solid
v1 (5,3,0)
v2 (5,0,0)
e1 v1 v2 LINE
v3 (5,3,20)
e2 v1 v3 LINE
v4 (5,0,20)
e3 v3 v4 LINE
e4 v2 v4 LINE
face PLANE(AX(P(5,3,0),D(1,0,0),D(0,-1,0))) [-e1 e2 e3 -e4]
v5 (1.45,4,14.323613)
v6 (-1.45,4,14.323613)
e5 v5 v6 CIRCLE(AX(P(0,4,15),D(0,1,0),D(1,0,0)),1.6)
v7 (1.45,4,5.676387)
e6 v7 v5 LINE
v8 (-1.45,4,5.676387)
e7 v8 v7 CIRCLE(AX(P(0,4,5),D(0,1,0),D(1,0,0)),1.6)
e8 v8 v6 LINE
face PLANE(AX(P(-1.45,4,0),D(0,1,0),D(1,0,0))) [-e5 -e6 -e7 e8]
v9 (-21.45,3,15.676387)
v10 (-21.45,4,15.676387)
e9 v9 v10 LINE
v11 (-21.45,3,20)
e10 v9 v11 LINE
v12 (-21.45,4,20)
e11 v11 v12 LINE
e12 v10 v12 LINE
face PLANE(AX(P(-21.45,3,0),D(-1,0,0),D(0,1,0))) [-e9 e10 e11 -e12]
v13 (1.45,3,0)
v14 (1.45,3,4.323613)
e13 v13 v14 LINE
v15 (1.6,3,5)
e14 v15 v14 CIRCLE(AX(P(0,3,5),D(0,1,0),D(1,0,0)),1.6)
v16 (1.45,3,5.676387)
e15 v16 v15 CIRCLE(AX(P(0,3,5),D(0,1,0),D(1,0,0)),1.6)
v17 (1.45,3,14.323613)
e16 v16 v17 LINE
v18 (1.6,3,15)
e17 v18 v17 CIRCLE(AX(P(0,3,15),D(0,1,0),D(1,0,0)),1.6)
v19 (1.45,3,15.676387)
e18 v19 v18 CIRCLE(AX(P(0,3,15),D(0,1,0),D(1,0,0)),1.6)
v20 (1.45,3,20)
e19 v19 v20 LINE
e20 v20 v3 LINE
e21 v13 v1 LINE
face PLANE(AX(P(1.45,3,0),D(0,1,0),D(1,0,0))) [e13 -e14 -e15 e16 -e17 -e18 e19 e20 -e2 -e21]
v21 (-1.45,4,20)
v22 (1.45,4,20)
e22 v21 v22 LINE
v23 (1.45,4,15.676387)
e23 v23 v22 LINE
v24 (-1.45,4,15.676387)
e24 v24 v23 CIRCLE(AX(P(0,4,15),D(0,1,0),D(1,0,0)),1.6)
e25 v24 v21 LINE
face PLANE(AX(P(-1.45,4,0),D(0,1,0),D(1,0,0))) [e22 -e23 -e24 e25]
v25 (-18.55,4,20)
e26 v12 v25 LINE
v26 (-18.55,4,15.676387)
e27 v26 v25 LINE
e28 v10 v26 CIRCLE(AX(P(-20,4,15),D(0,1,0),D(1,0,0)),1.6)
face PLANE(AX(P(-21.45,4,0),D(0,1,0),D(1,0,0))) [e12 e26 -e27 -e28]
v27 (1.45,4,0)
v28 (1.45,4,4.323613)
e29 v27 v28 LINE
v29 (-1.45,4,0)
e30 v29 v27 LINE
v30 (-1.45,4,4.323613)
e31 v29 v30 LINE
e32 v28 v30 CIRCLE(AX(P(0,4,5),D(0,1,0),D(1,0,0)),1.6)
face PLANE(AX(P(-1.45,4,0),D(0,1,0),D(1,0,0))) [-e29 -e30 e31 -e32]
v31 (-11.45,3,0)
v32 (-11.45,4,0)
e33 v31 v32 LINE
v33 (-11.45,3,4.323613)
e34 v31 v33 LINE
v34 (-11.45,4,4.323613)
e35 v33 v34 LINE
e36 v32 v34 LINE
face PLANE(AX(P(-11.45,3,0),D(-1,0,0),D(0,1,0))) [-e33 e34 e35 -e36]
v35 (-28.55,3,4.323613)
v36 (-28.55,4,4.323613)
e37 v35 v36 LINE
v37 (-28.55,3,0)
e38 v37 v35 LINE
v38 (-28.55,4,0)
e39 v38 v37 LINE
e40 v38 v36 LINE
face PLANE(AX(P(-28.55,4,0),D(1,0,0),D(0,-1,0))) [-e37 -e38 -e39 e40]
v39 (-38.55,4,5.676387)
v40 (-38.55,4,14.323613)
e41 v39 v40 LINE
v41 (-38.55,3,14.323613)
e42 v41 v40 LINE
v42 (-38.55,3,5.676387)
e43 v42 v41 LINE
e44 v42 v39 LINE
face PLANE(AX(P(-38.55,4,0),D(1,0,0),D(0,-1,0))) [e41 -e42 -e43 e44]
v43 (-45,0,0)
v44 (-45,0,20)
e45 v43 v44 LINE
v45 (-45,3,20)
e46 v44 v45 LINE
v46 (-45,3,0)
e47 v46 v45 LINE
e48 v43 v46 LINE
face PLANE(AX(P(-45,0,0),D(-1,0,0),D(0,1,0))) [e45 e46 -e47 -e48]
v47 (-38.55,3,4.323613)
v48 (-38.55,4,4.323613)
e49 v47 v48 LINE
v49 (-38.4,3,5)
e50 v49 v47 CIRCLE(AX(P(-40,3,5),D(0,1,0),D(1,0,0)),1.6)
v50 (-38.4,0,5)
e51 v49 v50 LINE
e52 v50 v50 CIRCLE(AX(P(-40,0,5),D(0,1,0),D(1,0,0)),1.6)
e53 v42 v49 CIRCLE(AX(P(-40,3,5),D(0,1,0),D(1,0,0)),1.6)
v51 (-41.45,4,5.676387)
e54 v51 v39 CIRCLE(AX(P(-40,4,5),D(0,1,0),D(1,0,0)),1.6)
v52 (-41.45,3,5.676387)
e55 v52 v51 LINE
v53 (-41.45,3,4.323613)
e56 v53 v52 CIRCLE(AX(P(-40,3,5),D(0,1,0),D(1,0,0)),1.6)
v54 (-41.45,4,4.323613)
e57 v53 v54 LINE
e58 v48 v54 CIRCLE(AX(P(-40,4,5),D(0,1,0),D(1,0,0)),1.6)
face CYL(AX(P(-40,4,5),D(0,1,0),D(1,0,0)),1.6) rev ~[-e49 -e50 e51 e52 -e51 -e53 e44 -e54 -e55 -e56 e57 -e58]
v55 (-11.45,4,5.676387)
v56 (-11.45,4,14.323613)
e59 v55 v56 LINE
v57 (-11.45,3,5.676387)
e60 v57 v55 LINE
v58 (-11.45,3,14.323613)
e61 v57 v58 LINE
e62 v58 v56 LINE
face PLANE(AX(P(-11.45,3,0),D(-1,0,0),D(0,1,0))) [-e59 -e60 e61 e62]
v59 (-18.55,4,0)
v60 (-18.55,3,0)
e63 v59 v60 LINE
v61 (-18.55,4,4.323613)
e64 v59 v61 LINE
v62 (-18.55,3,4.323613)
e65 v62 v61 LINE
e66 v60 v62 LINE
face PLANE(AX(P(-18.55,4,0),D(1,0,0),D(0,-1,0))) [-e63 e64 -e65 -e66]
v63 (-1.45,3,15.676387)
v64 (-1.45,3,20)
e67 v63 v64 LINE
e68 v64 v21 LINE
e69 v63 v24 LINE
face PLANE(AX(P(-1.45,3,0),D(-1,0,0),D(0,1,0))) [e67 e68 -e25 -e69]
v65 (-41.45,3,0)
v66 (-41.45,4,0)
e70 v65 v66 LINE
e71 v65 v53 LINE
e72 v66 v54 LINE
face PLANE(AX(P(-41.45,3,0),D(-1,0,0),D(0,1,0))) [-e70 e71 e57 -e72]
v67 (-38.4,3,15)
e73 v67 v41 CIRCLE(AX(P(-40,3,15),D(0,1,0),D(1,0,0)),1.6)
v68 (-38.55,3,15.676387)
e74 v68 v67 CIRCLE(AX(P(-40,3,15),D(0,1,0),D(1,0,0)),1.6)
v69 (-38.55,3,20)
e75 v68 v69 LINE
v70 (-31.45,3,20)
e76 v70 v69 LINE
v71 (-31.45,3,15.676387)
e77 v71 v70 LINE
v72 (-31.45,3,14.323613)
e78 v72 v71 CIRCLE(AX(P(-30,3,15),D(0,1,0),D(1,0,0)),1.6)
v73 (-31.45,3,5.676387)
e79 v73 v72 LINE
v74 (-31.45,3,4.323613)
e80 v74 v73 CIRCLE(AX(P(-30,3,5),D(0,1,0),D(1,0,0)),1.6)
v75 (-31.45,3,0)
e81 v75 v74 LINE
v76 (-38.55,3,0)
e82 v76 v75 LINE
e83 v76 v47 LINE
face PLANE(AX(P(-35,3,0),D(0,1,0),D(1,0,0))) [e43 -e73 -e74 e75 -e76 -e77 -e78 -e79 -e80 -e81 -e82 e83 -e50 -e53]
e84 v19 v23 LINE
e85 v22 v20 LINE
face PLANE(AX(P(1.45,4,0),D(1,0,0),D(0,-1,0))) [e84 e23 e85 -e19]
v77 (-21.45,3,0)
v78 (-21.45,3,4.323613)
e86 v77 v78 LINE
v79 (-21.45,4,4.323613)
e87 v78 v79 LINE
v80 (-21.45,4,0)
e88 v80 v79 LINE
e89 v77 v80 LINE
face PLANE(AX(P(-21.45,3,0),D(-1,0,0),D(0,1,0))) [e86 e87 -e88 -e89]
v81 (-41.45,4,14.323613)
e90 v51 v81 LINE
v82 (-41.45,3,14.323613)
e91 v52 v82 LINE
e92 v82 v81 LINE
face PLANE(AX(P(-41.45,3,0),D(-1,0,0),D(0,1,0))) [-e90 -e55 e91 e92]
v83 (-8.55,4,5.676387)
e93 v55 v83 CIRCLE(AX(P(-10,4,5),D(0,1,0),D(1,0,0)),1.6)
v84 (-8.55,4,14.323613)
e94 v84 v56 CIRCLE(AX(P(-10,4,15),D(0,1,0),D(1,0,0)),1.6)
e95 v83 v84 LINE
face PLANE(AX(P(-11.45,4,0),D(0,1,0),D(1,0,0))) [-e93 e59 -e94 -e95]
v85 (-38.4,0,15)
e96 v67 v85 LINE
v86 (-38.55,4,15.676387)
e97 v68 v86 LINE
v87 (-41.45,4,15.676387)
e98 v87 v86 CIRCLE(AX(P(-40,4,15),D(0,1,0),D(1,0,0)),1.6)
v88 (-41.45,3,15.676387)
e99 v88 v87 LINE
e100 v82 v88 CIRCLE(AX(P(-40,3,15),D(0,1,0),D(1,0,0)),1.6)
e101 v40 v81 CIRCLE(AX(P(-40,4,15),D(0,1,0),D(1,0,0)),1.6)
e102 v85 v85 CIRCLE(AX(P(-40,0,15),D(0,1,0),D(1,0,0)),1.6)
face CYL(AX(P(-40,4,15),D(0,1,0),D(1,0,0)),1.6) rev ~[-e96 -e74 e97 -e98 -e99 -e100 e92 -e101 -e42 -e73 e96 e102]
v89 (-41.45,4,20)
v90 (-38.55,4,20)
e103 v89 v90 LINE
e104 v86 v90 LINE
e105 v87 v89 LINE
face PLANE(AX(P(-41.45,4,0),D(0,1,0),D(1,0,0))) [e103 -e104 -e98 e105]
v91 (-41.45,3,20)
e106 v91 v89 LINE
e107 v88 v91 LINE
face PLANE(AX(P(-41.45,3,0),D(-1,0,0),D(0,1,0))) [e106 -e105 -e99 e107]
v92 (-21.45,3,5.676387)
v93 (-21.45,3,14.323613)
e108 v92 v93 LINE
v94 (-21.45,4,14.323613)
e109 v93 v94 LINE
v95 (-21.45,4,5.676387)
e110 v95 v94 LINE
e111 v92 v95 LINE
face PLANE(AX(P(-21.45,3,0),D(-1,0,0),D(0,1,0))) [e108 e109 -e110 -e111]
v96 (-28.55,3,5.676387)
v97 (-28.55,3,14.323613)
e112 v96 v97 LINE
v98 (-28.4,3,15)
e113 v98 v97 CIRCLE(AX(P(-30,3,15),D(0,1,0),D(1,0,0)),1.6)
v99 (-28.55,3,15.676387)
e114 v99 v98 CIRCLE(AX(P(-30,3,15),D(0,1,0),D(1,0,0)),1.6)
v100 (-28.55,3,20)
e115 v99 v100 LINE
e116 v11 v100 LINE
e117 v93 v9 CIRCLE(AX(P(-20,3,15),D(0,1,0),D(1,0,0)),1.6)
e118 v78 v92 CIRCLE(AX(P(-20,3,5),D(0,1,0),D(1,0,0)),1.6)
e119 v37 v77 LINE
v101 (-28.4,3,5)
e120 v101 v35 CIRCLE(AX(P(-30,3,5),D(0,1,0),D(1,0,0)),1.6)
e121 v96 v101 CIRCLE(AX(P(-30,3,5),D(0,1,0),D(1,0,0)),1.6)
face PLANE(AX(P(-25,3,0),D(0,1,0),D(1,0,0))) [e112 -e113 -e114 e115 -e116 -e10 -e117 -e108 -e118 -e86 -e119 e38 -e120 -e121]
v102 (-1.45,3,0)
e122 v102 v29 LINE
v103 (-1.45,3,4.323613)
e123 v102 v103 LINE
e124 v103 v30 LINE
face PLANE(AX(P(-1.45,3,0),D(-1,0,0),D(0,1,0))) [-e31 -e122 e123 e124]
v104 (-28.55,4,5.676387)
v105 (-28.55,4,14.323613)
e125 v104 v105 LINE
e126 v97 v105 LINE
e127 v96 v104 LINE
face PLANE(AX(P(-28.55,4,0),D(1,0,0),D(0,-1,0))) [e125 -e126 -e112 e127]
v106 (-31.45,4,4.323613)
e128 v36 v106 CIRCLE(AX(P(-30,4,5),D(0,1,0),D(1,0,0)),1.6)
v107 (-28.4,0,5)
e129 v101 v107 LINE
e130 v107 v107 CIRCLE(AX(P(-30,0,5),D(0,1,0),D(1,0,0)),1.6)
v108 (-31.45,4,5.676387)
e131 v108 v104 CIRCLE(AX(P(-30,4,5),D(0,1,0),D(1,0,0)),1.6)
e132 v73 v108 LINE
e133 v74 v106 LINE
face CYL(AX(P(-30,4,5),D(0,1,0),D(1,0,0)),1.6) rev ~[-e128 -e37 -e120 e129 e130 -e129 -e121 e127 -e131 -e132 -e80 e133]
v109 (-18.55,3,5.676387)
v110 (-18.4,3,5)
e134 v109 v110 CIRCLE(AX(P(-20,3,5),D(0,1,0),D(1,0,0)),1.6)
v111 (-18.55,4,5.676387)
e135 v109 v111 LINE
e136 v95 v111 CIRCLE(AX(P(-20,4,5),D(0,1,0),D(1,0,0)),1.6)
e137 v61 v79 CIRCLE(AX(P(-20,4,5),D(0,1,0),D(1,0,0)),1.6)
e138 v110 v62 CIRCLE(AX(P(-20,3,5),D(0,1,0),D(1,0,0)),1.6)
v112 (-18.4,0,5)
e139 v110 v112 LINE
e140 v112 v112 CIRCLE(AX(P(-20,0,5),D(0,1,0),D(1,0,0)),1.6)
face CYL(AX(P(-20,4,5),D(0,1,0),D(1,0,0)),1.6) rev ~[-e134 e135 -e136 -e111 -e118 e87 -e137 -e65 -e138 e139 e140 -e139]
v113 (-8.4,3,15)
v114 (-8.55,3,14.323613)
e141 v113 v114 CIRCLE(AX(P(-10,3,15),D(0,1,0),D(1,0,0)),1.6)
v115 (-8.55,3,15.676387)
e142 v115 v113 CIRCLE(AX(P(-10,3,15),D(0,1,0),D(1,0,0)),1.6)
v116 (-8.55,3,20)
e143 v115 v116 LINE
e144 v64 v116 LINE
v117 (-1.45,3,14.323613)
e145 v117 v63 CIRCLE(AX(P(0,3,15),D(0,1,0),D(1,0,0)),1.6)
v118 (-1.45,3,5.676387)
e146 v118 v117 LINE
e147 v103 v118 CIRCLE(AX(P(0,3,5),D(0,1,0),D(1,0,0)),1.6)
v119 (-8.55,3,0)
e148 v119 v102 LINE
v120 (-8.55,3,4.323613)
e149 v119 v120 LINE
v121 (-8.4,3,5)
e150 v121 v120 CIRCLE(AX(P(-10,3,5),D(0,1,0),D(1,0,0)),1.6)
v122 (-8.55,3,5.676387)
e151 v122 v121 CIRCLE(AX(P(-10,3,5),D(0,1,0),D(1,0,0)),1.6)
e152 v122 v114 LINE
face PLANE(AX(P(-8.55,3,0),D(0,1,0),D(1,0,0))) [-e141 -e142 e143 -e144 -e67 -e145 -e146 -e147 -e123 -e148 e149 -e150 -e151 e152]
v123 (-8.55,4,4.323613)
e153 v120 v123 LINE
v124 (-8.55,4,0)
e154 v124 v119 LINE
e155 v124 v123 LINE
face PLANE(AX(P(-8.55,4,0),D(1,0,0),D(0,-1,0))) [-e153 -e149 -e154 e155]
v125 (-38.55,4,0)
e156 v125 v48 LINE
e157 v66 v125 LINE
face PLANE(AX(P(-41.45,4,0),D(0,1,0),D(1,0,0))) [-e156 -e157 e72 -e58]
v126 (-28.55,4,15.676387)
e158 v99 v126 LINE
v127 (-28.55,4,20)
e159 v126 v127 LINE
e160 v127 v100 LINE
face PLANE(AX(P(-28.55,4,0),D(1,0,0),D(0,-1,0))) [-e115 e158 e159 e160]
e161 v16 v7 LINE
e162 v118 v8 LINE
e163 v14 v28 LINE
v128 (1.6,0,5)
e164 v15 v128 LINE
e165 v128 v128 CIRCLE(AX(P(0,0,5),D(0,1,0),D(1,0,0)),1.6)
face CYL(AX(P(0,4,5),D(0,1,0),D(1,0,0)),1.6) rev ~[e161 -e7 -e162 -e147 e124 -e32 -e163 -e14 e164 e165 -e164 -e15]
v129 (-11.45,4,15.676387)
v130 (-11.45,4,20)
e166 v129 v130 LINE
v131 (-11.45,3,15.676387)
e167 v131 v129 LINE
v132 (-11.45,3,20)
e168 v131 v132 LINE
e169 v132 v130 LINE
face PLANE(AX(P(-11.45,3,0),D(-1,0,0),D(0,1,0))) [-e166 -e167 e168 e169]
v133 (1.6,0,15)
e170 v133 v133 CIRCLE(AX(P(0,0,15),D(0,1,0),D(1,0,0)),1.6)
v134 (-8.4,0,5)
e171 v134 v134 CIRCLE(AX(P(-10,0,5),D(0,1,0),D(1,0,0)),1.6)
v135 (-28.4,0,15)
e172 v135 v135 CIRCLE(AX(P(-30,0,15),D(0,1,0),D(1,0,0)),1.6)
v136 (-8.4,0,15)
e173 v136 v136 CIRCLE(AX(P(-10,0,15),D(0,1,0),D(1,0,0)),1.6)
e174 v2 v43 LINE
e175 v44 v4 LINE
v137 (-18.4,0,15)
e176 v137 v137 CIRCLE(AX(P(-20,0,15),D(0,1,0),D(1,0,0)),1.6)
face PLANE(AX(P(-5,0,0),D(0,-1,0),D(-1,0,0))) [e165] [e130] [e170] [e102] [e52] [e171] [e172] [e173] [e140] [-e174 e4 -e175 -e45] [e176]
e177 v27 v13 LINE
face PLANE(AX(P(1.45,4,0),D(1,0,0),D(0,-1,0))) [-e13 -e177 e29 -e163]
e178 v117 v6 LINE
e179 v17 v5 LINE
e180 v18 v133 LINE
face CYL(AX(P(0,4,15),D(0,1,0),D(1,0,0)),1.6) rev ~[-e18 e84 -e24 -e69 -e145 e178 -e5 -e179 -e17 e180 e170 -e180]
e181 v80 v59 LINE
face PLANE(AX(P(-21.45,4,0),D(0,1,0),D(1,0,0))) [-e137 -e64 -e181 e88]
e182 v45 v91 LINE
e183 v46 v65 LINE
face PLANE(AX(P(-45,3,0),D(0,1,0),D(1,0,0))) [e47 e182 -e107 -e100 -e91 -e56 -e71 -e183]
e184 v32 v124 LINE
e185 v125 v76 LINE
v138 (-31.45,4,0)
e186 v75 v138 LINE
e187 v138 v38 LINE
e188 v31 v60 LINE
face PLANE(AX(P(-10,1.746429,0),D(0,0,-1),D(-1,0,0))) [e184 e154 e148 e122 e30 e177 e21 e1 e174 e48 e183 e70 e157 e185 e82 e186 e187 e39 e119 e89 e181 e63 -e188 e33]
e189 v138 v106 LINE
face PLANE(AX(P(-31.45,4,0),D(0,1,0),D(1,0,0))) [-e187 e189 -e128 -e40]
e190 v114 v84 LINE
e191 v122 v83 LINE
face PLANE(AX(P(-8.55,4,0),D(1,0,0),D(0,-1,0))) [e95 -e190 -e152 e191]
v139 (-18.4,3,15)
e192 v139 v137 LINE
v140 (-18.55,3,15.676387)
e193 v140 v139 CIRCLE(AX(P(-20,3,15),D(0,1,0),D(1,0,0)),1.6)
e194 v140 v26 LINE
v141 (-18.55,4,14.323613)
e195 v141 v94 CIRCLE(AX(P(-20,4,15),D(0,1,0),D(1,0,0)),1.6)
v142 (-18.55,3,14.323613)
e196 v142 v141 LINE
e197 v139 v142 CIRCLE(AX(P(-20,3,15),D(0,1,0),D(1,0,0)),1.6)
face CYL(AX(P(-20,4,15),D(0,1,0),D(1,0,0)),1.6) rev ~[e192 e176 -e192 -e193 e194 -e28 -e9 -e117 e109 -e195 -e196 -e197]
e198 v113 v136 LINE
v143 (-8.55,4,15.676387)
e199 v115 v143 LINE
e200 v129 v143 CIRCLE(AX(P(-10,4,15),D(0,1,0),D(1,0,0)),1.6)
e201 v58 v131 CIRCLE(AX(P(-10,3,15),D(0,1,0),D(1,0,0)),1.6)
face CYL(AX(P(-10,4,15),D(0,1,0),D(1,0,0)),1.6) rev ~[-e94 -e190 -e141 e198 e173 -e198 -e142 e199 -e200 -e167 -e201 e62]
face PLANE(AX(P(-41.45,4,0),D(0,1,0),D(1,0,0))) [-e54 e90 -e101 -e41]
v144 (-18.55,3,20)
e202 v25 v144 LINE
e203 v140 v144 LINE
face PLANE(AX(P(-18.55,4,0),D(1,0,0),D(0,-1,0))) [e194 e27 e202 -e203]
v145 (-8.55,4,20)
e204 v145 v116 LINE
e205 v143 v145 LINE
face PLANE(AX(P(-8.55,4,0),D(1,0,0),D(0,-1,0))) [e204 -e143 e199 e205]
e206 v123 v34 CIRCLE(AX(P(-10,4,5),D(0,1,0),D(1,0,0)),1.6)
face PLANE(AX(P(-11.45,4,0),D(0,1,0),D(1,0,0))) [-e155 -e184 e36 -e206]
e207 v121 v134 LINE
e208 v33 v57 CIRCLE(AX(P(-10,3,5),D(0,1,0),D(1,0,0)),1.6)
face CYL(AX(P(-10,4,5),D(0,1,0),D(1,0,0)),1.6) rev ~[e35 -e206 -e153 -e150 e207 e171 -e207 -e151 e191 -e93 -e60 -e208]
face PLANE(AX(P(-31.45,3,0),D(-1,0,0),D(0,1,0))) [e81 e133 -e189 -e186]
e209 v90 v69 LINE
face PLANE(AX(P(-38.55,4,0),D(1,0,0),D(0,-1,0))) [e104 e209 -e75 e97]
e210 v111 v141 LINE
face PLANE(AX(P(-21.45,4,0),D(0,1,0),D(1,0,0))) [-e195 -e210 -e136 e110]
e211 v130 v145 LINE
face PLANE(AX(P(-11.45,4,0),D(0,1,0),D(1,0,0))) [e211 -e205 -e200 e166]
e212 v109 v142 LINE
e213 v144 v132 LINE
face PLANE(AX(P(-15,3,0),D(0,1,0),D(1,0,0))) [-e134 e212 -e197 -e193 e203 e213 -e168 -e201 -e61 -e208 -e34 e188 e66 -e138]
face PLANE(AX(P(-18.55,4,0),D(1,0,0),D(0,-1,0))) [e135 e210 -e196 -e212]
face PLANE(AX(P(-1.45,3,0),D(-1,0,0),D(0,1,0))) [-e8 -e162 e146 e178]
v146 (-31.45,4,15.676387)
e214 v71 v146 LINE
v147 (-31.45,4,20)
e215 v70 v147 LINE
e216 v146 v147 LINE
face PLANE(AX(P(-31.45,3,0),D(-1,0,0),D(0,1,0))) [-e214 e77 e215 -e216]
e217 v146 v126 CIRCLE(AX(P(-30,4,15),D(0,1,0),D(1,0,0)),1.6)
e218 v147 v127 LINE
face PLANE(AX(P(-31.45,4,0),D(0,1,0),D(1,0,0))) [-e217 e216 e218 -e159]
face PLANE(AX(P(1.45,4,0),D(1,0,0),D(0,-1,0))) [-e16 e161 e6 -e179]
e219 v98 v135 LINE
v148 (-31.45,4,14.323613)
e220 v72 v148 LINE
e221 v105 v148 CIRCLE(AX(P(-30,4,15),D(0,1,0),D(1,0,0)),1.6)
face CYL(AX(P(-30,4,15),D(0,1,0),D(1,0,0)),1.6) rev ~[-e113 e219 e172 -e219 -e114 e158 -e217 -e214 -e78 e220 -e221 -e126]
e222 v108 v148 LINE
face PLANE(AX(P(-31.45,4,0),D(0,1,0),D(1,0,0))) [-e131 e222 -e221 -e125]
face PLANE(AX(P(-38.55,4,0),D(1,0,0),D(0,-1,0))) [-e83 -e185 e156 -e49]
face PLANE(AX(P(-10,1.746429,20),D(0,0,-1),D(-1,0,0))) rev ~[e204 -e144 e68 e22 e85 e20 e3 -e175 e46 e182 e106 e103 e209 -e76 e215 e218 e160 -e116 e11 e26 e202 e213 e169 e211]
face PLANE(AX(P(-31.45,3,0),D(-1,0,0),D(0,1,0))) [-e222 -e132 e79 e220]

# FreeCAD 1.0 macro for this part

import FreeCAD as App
import Part
import Sketcher

V = App.Vector

doc = App.newDocument("Part")
body = doc.addObject("PartDesign::Body", "Body")

sketch1 = body.newObject("Sketcher::SketchObject", "Sketch")
sketch1.AttachmentSupport = (doc.getObject("XY_Plane"), [""])
sketch1.MapMode = "FlatFace"
sketch1.addGeometry(Part.LineSegment(V(-5, 3, 0), V(-5, 0, 0)), False)
sketch1.addGeometry(Part.LineSegment(V(-5, 0, 0), V(5, 0, 0)), False)
sketch1.addGeometry(Part.LineSegment(V(5, 0, 0), V(5, 3, 0)), False)
sketch1.addGeometry(Part.LineSegment(V(5, 3, 0), V(1.4, 3, 0)), False)
sketch1.addGeometry(Part.LineSegment(V(1.4, 3, 0), V(1.4, 4, 0)), False)
sketch1.addGeometry(Part.LineSegment(V(1.4, 4, 0), V(-1.4, 4, 0)), False)
sketch1.addGeometry(Part.LineSegment(V(-1.4, 4, 0), V(-1.4, 3, 0)), False)
sketch1.addGeometry(Part.LineSegment(V(-1.4, 3, 0), V(-5, 3, 0)), False)
sketch1.addConstraint(Sketcher.Constraint("Coincident", 0, 2, 1, 1))
sketch1.addConstraint(Sketcher.Constraint("Coincident", 1, 2, 2, 1))
sketch1.addConstraint(Sketcher.Constraint("Coincident", 2, 2, 3, 1))
sketch1.addConstraint(Sketcher.Constraint("Coincident", 3, 2, 4, 1))
sketch1.addConstraint(Sketcher.Constraint("Coincident", 4, 2, 5, 1))
sketch1.addConstraint(Sketcher.Constraint("Coincident", 5, 2, 6, 1))
sketch1.addConstraint(Sketcher.Constraint("Coincident", 6, 2, 7, 1))
sketch1.addConstraint(Sketcher.Constraint("Coincident", 7, 2, 0, 1))
sketch1.addConstraint(Sketcher.Constraint("Vertical", 0))
sketch1.addConstraint(Sketcher.Constraint("Horizontal", 1))
sketch1.addConstraint(Sketcher.Constraint("Vertical", 2))
sketch1.addConstraint(Sketcher.Constraint("Horizontal", 3))
sketch1.addConstraint(Sketcher.Constraint("Vertical", 4))
sketch1.addConstraint(Sketcher.Constraint("Horizontal", 5))
sketch1.addConstraint(Sketcher.Constraint("Vertical", 6))
sketch1.addConstraint(Sketcher.Constraint("Horizontal", 7))
sketch1.addConstraint(Sketcher.Constraint("Symmetric", 0, 2, 1, 2, -1, 1))
sketch1.addConstraint(Sketcher.Constraint("Symmetric", 3, 2, 6, 2, -2))
sketch1.addConstraint(Sketcher.Constraint("DistanceX", 1, 1, 1, 2, 10.0))
sketch1.addConstraint(Sketcher.Constraint("DistanceY", 0, 2, 0, 1, 3.0))
sketch1.addConstraint(Sketcher.Constraint("DistanceY", 4, 1, 4, 2, 1.0))
sketch1.addConstraint(Sketcher.Constraint("DistanceX", 5, 2, 5, 1, 2.9))
pad1 = body.newObject("PartDesign::Pad", "Pad")
pad1.Profile = sketch1
pad1.Length = 20

sketch2 = body.newObject("Sketcher::SketchObject", "Sketch001")
sketch2.AttachmentSupport = (doc.getObject("XZ_Plane"), [""])
sketch2.MapMode = "FlatFace"
sketch2.AttachmentOffset = App.Placement(V(0, 0, -4), App.Rotation())
sketch2.addGeometry(Part.Circle(V(0, 5, 0), V(0, 0, 1), 1.6), False)
sketch2.addGeometry(Part.Circle(V(0, 15, 0), V(0, 0, 1), 1.6), False)
sketch2.addConstraint(Sketcher.Constraint("Equal", 0, 1))
sketch2.addConstraint(Sketcher.Constraint("PointOnObject", 0, 3, -2))
sketch2.addConstraint(Sketcher.Constraint("PointOnObject", 1, 3, -2))
sketch2.addConstraint(Sketcher.Constraint("Diameter", 0, 3.2))
sketch2.addConstraint(Sketcher.Constraint("DistanceY", -1, 1, 0, 3, 5.0))
sketch2.addConstraint(Sketcher.Constraint("DistanceY", -1, 1, 1, 3, 15.0))
pocket1 = body.newObject("PartDesign::Pocket", "Pocket")
pocket1.Profile = sketch2
pocket1.Type = "ThroughAll"
pocket1.Reversed = True
doc.recompute()

linearpattern = body.newObject("PartDesign::LinearPattern", "LinearPattern")
linearpattern.Originals = [pad1, pocket1]
linearpattern.Direction = (doc.getObject("X_Axis"), [""])
linearpattern.Mode = "offset"
linearpattern.Offset = 10
linearpattern.Occurrences = 5
linearpattern.Reversed = True
body.Tip = linearpattern

doc.recompute()
